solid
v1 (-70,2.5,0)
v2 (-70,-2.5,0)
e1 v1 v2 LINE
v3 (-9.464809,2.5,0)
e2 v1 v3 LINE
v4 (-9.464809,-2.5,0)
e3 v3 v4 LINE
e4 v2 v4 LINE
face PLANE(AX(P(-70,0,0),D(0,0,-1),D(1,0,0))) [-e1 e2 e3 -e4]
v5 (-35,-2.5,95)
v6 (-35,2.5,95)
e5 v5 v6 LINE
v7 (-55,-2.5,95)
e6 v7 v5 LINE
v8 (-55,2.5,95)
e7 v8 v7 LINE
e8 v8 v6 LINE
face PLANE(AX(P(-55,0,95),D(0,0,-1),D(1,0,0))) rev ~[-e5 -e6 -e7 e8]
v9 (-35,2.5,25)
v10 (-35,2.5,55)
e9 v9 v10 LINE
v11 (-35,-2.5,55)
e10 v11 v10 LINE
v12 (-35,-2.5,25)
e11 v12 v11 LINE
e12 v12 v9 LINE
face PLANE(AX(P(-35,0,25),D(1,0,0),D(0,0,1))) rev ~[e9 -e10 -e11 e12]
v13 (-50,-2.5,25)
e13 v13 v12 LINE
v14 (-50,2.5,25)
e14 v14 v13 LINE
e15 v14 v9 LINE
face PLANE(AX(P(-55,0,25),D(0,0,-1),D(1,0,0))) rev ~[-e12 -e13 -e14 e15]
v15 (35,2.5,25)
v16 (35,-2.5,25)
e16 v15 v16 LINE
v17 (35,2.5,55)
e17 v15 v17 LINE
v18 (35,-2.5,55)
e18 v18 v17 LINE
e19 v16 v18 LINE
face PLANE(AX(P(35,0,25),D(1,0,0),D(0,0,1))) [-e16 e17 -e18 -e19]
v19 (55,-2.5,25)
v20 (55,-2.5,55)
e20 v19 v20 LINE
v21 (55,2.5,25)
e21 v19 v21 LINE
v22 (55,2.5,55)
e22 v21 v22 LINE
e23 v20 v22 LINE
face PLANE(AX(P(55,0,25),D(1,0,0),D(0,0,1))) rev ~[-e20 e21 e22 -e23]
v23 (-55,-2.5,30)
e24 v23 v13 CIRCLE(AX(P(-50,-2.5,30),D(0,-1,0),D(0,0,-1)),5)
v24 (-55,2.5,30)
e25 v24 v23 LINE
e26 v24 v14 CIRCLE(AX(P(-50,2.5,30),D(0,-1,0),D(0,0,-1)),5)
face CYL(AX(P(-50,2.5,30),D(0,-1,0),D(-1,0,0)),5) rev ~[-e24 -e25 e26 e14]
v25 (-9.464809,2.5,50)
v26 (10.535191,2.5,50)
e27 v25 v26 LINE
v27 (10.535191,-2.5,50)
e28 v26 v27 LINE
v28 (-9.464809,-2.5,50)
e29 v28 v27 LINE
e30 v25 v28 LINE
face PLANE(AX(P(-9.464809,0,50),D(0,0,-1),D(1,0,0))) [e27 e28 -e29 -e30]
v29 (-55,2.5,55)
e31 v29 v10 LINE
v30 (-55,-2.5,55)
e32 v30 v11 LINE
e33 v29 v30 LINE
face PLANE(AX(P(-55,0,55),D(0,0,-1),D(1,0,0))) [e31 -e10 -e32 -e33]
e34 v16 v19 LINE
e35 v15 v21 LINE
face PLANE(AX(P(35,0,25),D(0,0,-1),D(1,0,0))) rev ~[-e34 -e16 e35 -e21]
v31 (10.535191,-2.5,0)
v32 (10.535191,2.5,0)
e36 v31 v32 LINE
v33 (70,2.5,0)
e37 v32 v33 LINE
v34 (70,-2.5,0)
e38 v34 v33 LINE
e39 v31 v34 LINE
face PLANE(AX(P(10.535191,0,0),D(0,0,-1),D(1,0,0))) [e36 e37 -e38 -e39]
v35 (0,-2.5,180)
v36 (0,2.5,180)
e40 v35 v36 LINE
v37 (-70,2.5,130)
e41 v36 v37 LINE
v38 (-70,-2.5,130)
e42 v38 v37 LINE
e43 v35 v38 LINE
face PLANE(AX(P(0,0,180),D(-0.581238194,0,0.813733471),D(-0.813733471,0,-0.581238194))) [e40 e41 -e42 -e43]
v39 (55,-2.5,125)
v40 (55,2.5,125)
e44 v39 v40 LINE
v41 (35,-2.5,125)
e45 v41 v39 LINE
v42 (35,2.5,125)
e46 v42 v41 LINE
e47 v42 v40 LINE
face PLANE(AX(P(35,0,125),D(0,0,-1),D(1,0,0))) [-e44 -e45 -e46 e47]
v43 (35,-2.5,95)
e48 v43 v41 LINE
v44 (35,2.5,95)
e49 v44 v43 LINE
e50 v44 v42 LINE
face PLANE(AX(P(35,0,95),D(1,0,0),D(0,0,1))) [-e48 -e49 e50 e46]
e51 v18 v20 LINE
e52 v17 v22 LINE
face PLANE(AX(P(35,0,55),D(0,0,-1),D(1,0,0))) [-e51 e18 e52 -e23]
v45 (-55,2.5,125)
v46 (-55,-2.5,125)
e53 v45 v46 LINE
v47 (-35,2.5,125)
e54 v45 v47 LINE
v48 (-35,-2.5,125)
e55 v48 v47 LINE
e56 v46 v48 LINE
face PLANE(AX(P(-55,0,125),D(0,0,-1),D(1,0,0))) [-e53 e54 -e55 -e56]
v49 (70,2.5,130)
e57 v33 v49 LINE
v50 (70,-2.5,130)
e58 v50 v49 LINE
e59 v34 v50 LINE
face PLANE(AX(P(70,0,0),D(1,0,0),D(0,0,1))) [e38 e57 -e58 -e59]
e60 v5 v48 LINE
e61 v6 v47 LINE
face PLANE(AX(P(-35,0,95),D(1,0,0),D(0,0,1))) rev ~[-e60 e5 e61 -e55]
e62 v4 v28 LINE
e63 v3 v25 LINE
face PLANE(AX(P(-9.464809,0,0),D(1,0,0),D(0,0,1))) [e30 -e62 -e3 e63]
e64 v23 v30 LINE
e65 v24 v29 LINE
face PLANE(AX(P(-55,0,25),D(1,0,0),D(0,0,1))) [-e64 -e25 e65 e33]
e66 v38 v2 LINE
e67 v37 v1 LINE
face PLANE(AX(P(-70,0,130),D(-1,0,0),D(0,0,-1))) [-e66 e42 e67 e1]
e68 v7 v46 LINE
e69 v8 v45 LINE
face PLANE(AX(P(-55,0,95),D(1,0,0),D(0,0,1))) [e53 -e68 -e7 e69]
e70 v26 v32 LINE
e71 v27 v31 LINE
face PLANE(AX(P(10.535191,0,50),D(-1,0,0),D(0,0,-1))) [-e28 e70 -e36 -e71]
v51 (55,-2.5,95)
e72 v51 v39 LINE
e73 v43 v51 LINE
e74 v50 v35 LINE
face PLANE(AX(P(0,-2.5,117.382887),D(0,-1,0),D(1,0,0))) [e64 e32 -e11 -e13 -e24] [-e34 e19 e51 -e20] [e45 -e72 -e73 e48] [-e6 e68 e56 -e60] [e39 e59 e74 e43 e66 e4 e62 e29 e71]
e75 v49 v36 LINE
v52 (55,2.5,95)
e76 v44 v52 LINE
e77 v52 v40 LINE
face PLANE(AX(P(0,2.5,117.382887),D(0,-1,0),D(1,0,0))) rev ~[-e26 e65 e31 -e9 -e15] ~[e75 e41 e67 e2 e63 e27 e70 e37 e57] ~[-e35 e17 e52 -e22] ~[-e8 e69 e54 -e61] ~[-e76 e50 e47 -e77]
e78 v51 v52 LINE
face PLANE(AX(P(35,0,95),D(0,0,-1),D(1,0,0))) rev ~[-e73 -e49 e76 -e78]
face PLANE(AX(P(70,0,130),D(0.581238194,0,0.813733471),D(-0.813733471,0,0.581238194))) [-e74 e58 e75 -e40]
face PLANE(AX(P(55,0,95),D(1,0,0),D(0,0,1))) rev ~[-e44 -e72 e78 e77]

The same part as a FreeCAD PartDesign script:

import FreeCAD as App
import Part
import Sketcher

V = App.Vector


def edges_at(feature, points):
    """Names of the edges that pass closest to the given points."""
    edges = feature.Shape.Edges
    near = lambda p: min(range(len(edges)), key=lambda i: edges[i].distToShape(Part.Vertex(*p))[0])
    return sorted({f"Edge{near(p) + 1}" for p in points})

doc = App.newDocument("Part")
params = doc.addObject("Spreadsheet::Sheet", "Params")
for row, (alias, value) in enumerate([
    ("sketch1_width", "20 mm"),
    ("sketch1_height", "130 mm"),
    ("sketch1_height2", "50 mm"),
    ("sketch1_height3", "30 mm"),
    ("pad1_length", "5 mm"),
    ("fillet_radius", "5 mm"),
], start=1):
    params.set(f"A{row}", alias)
    params.set(f"B{row}", "=" + value)
    params.setAlias(f"B{row}", alias)

body = doc.addObject("PartDesign::Body", "Body")

sketch1 = doc.addObject("Sketcher::SketchObject", "Sketch")
body.addObject(sketch1)
sketch1.AttachmentSupport = (doc.XZ_Plane, [""])
sketch1.MapMode = "FlatFace"
sketch1.addGeometry([
    Part.LineSegment(V(-70, 130, 0), V(-70, 0, 0)),
    Part.LineSegment(V(-70, 0, 0), V(-9, 0, 0)),
    Part.LineSegment(V(-9, 0, 0), V(-9, 50, 0)),
    Part.LineSegment(V(-9, 50, 0), V(11, 50, 0)),
    Part.LineSegment(V(11, 50, 0), V(11, 0, 0)),
    Part.LineSegment(V(11, 0, 0), V(70, 0, 0)),
    Part.LineSegment(V(70, 0, 0), V(70, 130, 0)),
    Part.LineSegment(V(70, 130, 0), V(0, 180, 0)),
    Part.LineSegment(V(0, 180, 0), V(-70, 130, 0)),
    Part.LineSegment(V(-35, 25, 0), V(-55, 25, 0)),
    Part.LineSegment(V(-55, 25, 0), V(-55, 55, 0)),
    Part.LineSegment(V(-55, 55, 0), V(-35, 55, 0)),
    Part.LineSegment(V(-35, 55, 0), V(-35, 25, 0)),
    Part.LineSegment(V(55, 25, 0), V(35, 25, 0)),
    Part.LineSegment(V(35, 25, 0), V(35, 55, 0)),
    Part.LineSegment(V(35, 55, 0), V(55, 55, 0)),
    Part.LineSegment(V(55, 55, 0), V(55, 25, 0)),
    Part.LineSegment(V(-35, 95, 0), V(-55, 95, 0)),
    Part.LineSegment(V(-55, 95, 0), V(-55, 125, 0)),
    Part.LineSegment(V(-55, 125, 0), V(-35, 125, 0)),
    Part.LineSegment(V(-35, 125, 0), V(-35, 95, 0)),
    Part.LineSegment(V(55, 95, 0), V(35, 95, 0)),
    Part.LineSegment(V(35, 95, 0), V(35, 125, 0)),
    Part.LineSegment(V(35, 125, 0), V(55, 125, 0)),
    Part.LineSegment(V(55, 125, 0), V(55, 95, 0)),
], False)
sketch1.addConstraint([
    Sketcher.Constraint("Coincident", 0, 2, 1, 1),
    Sketcher.Constraint("Coincident", 1, 2, 2, 1),
    Sketcher.Constraint("Coincident", 2, 2, 3, 1),
    Sketcher.Constraint("Coincident", 3, 2, 4, 1),
    Sketcher.Constraint("Coincident", 4, 2, 5, 1),
    Sketcher.Constraint("Coincident", 5, 2, 6, 1),
    Sketcher.Constraint("Coincident", 6, 2, 7, 1),
    Sketcher.Constraint("Coincident", 7, 2, 8, 1),
    Sketcher.Constraint("Coincident", 8, 2, 0, 1),
    Sketcher.Constraint("Coincident", 9, 2, 10, 1),
    Sketcher.Constraint("Coincident", 10, 2, 11, 1),
    Sketcher.Constraint("Coincident", 11, 2, 12, 1),
    Sketcher.Constraint("Coincident", 12, 2, 9, 1),
    Sketcher.Constraint("Coincident", 13, 2, 14, 1),
    Sketcher.Constraint("Coincident", 14, 2, 15, 1),
    Sketcher.Constraint("Coincident", 15, 2, 16, 1),
    Sketcher.Constraint("Coincident", 16, 2, 13, 1),
    Sketcher.Constraint("Coincident", 17, 2, 18, 1),
    Sketcher.Constraint("Coincident", 18, 2, 19, 1),
    Sketcher.Constraint("Coincident", 19, 2, 20, 1),
    Sketcher.Constraint("Coincident", 20, 2, 17, 1),
    Sketcher.Constraint("Coincident", 21, 2, 22, 1),
    Sketcher.Constraint("Coincident", 22, 2, 23, 1),
    Sketcher.Constraint("Coincident", 23, 2, 24, 1),
    Sketcher.Constraint("Coincident", 24, 2, 21, 1),
    Sketcher.Constraint("Vertical", 0),
    Sketcher.Constraint("Horizontal", 1),
    Sketcher.Constraint("Vertical", 2),
    Sketcher.Constraint("Horizontal", 3),
    Sketcher.Constraint("Vertical", 4),
    Sketcher.Constraint("Horizontal", 5),
    Sketcher.Constraint("Vertical", 6),
    Sketcher.Constraint("Horizontal", 9),
    Sketcher.Constraint("Vertical", 10),
    Sketcher.Constraint("Horizontal", 11),
    Sketcher.Constraint("Vertical", 12),
    Sketcher.Constraint("Horizontal", 13),
    Sketcher.Constraint("Vertical", 14),
    Sketcher.Constraint("Horizontal", 15),
    Sketcher.Constraint("Vertical", 16),
    Sketcher.Constraint("Horizontal", 17),
    Sketcher.Constraint("Vertical", 18),
    Sketcher.Constraint("Horizontal", 19),
    Sketcher.Constraint("Vertical", 20),
    Sketcher.Constraint("Horizontal", 21),
    Sketcher.Constraint("Vertical", 22),
    Sketcher.Constraint("Horizontal", 23),
    Sketcher.Constraint("Vertical", 24),
    Sketcher.Constraint("Symmetric", 0, 2, 5, 2, -1, 1),
    Sketcher.Constraint("Symmetric", 12, 2, 13, 2, -2),
    Sketcher.Constraint("Symmetric", 10, 2, 15, 2, -2),
    Sketcher.Constraint("Symmetric", 20, 2, 21, 2, -2),
    Sketcher.Constraint("Symmetric", 18, 2, 23, 2, -2),
    Sketcher.Constraint("PointOnObject", 0, 2, -1),
    Sketcher.Constraint("PointOnObject", 7, 2, -2),
    Sketcher.Constraint("Horizontal", 6, 2, 8, 2),
    Sketcher.Constraint("Vertical", 10, 2, 17, 2),
    Sketcher.Constraint("Vertical", 12, 2, 19, 2),
    Sketcher.Constraint("Equal", 3, 9),
    Sketcher.Constraint("Equal", 16, 18),
    Sketcher.Constraint("DistanceX", 3, 1, 3, 2, 20.0),
    Sketcher.Constraint("DistanceY", 0, 2, 0, 1, 130.0),
    Sketcher.Constraint("DistanceY", 2, 1, 2, 2, 50.0),
    Sketcher.Constraint("DistanceY", 10, 1, 10, 2, 30.0),
    Sketcher.Constraint("DistanceX", 0, 2, -1, 1, 70.0),
    Sketcher.Constraint("DistanceY", -1, 1, 7, 2, 180.0),
    Sketcher.Constraint("DistanceX", 9, 2, -1, 1, 55.0),
    Sketcher.Constraint("DistanceY", -1, 1, 9, 2, 25.0),
    Sketcher.Constraint("DistanceY", -1, 1, 17, 2, 95.0),
    Sketcher.Constraint("DistanceX", 1, 1, 1, 2, 60.535191),
])
sketch1.setExpression("Constraints[60]", "Params.sketch1_width")
sketch1.setExpression("Constraints[61]", "Params.sketch1_height")
sketch1.setExpression("Constraints[62]", "Params.sketch1_height2")
sketch1.setExpression("Constraints[63]", "Params.sketch1_height3")
pad1 = doc.addObject("PartDesign::Pad", "Pad")
body.addObject(pad1)
pad1.Profile = sketch1
pad1.setExpression("Length", "Params.pad1_length")
pad1.Midplane = True
doc.recompute()

fillet = doc.addObject("PartDesign::Fillet", "Fillet")
body.addObject(fillet)
fillet.Base = (pad1, edges_at(pad1, [(-55, 0, 25)]))
fillet.setExpression("Radius", "Params.fillet_radius")

doc.recompute()
